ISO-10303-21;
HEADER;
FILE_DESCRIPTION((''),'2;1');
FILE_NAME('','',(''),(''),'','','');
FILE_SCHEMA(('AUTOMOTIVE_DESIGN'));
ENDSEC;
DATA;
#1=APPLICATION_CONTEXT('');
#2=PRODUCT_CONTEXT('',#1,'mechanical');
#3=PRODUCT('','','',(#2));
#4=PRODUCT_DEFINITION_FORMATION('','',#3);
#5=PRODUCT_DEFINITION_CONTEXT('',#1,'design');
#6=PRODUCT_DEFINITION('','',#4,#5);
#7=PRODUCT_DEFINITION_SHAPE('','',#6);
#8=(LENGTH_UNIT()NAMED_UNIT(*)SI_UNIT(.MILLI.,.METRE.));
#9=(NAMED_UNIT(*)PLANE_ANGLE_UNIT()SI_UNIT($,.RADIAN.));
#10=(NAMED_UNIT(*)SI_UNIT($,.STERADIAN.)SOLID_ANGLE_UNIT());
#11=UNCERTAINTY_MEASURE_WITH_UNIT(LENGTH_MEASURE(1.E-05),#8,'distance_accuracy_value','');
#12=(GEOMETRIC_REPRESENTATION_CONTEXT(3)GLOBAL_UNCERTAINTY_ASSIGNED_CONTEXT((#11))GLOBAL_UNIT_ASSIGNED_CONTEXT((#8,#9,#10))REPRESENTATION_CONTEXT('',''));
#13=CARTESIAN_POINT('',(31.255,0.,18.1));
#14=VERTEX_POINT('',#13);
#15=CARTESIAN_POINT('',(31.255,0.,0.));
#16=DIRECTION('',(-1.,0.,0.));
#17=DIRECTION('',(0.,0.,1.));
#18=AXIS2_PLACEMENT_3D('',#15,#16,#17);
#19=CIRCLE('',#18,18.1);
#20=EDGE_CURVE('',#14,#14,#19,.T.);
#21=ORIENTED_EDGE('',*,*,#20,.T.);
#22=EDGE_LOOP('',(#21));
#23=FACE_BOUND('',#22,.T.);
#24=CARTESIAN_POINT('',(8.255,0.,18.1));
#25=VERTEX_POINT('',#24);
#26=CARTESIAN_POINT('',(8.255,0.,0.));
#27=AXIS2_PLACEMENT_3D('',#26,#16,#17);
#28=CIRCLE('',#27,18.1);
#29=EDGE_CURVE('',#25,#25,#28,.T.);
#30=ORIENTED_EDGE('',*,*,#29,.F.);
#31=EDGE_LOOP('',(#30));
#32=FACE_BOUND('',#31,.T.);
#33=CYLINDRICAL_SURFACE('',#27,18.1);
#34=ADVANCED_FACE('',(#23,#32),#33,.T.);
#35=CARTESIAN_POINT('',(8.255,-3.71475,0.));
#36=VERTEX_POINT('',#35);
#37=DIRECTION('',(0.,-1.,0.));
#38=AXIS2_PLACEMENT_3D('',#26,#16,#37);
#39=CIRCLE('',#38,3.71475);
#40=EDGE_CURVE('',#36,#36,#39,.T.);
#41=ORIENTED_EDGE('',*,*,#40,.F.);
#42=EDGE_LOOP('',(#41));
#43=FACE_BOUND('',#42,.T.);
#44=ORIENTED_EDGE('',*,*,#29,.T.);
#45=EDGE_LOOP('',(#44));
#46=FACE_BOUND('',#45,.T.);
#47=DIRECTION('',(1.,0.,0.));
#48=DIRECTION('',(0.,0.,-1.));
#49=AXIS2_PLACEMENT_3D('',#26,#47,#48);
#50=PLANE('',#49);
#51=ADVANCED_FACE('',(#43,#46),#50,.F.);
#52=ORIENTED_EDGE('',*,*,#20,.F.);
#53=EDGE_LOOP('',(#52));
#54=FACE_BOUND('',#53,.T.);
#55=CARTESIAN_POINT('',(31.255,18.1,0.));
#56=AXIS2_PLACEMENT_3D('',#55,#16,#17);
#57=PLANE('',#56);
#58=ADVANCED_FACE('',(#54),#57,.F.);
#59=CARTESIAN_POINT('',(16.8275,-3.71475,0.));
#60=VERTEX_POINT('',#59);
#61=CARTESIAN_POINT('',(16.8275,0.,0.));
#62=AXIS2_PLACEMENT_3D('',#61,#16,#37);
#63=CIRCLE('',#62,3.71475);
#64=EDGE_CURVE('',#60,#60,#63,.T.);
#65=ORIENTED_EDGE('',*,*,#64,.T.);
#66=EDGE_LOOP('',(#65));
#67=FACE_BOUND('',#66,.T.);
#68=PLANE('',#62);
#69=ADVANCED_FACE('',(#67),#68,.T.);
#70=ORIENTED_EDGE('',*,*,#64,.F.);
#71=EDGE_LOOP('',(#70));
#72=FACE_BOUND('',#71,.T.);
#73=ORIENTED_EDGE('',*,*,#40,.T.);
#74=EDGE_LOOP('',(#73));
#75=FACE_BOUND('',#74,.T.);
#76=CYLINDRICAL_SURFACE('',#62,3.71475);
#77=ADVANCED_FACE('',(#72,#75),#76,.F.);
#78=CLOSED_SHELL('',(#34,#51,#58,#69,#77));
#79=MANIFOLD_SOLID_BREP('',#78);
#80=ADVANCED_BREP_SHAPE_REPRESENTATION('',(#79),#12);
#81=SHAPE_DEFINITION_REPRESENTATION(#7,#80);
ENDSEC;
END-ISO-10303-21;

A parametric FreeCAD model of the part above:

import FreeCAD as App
import Part
import Sketcher

doc = App.newDocument("Part")
body = doc.addObject("PartDesign::Body", "Body")

# Sketch on XY plane
sketch1 = doc.addObject("Sketcher::SketchObject", "Sketch")
body.addObject(sketch1)
sketch1.AttachmentSupport = (doc.XY_Plane, [""])
sketch1.MapMode = "FlatFace"
sketch1.addGeometry(Part.LineSegment(App.Vector(8.255, 18.1, 0), App.Vector(8.255, 0, 0)), False)
sketch1.addGeometry(Part.LineSegment(App.Vector(8.255, 0, 0), App.Vector(31.255, 0, 0)), False)
sketch1.addGeometry(Part.LineSegment(App.Vector(31.255, 0, 0), App.Vector(31.255, 18.1, 0)), False)
sketch1.addGeometry(Part.LineSegment(App.Vector(31.255, 18.1, 0), App.Vector(8.255, 18.1, 0)), False)
sketch1.addConstraint(Sketcher.Constraint("Coincident", 0, 2, 1, 1))
sketch1.addConstraint(Sketcher.Constraint("Coincident", 1, 2, 2, 1))
sketch1.addConstraint(Sketcher.Constraint("Coincident", 2, 2, 3, 1))
sketch1.addConstraint(Sketcher.Constraint("Coincident", 3, 2, 0, 1))
sketch1.addConstraint(Sketcher.Constraint("Vertical", 0))
sketch1.addConstraint(Sketcher.Constraint("Horizontal", 1))
sketch1.addConstraint(Sketcher.Constraint("Vertical", 2))
sketch1.addConstraint(Sketcher.Constraint("Horizontal", 3))
sketch1.addConstraint(Sketcher.Constraint("PointOnObject", 0, 2, -1))
sketch1.addConstraint(Sketcher.Constraint("DistanceX", 1, 1, 1, 2, 23.0))
sketch1.addConstraint(Sketcher.Constraint("DistanceY", 0, 2, 0, 1, 18.1))
sketch1.addConstraint(Sketcher.Constraint("DistanceX", -1, 1, 0, 2, 8.255))
revolution = doc.addObject("PartDesign::Revolution", "Revolution")
body.addObject(revolution)
revolution.Profile = sketch1
revolution.ReferenceAxis = (sketch1, ["H_Axis"])
revolution.Angle = 360

# Sketch on YZ plane
sketch2 = doc.addObject("Sketcher::SketchObject", "Sketch001")
body.addObject(sketch2)
sketch2.AttachmentSupport = (doc.YZ_Plane, [""])
sketch2.MapMode = "FlatFace"
sketch2.AttachmentOffset = App.Placement(App.Vector(0, 0, 8.255), App.Rotation())
sketch2.addGeometry(Part.Circle(App.Vector(0, 0, 0), App.Vector(0, 0, 1), 3.71475), False)
sketch2.addConstraint(Sketcher.Constraint("Coincident", 0, 3, -1, 1))
sketch2.addConstraint(Sketcher.Constraint("Diameter", 0, 7.4295))
pocket1 = doc.addObject("PartDesign::Pocket", "Pocket")
body.addObject(pocket1)
pocket1.Profile = sketch2
pocket1.Length = 8.5725
pocket1.Reversed = True

doc.recompute()
